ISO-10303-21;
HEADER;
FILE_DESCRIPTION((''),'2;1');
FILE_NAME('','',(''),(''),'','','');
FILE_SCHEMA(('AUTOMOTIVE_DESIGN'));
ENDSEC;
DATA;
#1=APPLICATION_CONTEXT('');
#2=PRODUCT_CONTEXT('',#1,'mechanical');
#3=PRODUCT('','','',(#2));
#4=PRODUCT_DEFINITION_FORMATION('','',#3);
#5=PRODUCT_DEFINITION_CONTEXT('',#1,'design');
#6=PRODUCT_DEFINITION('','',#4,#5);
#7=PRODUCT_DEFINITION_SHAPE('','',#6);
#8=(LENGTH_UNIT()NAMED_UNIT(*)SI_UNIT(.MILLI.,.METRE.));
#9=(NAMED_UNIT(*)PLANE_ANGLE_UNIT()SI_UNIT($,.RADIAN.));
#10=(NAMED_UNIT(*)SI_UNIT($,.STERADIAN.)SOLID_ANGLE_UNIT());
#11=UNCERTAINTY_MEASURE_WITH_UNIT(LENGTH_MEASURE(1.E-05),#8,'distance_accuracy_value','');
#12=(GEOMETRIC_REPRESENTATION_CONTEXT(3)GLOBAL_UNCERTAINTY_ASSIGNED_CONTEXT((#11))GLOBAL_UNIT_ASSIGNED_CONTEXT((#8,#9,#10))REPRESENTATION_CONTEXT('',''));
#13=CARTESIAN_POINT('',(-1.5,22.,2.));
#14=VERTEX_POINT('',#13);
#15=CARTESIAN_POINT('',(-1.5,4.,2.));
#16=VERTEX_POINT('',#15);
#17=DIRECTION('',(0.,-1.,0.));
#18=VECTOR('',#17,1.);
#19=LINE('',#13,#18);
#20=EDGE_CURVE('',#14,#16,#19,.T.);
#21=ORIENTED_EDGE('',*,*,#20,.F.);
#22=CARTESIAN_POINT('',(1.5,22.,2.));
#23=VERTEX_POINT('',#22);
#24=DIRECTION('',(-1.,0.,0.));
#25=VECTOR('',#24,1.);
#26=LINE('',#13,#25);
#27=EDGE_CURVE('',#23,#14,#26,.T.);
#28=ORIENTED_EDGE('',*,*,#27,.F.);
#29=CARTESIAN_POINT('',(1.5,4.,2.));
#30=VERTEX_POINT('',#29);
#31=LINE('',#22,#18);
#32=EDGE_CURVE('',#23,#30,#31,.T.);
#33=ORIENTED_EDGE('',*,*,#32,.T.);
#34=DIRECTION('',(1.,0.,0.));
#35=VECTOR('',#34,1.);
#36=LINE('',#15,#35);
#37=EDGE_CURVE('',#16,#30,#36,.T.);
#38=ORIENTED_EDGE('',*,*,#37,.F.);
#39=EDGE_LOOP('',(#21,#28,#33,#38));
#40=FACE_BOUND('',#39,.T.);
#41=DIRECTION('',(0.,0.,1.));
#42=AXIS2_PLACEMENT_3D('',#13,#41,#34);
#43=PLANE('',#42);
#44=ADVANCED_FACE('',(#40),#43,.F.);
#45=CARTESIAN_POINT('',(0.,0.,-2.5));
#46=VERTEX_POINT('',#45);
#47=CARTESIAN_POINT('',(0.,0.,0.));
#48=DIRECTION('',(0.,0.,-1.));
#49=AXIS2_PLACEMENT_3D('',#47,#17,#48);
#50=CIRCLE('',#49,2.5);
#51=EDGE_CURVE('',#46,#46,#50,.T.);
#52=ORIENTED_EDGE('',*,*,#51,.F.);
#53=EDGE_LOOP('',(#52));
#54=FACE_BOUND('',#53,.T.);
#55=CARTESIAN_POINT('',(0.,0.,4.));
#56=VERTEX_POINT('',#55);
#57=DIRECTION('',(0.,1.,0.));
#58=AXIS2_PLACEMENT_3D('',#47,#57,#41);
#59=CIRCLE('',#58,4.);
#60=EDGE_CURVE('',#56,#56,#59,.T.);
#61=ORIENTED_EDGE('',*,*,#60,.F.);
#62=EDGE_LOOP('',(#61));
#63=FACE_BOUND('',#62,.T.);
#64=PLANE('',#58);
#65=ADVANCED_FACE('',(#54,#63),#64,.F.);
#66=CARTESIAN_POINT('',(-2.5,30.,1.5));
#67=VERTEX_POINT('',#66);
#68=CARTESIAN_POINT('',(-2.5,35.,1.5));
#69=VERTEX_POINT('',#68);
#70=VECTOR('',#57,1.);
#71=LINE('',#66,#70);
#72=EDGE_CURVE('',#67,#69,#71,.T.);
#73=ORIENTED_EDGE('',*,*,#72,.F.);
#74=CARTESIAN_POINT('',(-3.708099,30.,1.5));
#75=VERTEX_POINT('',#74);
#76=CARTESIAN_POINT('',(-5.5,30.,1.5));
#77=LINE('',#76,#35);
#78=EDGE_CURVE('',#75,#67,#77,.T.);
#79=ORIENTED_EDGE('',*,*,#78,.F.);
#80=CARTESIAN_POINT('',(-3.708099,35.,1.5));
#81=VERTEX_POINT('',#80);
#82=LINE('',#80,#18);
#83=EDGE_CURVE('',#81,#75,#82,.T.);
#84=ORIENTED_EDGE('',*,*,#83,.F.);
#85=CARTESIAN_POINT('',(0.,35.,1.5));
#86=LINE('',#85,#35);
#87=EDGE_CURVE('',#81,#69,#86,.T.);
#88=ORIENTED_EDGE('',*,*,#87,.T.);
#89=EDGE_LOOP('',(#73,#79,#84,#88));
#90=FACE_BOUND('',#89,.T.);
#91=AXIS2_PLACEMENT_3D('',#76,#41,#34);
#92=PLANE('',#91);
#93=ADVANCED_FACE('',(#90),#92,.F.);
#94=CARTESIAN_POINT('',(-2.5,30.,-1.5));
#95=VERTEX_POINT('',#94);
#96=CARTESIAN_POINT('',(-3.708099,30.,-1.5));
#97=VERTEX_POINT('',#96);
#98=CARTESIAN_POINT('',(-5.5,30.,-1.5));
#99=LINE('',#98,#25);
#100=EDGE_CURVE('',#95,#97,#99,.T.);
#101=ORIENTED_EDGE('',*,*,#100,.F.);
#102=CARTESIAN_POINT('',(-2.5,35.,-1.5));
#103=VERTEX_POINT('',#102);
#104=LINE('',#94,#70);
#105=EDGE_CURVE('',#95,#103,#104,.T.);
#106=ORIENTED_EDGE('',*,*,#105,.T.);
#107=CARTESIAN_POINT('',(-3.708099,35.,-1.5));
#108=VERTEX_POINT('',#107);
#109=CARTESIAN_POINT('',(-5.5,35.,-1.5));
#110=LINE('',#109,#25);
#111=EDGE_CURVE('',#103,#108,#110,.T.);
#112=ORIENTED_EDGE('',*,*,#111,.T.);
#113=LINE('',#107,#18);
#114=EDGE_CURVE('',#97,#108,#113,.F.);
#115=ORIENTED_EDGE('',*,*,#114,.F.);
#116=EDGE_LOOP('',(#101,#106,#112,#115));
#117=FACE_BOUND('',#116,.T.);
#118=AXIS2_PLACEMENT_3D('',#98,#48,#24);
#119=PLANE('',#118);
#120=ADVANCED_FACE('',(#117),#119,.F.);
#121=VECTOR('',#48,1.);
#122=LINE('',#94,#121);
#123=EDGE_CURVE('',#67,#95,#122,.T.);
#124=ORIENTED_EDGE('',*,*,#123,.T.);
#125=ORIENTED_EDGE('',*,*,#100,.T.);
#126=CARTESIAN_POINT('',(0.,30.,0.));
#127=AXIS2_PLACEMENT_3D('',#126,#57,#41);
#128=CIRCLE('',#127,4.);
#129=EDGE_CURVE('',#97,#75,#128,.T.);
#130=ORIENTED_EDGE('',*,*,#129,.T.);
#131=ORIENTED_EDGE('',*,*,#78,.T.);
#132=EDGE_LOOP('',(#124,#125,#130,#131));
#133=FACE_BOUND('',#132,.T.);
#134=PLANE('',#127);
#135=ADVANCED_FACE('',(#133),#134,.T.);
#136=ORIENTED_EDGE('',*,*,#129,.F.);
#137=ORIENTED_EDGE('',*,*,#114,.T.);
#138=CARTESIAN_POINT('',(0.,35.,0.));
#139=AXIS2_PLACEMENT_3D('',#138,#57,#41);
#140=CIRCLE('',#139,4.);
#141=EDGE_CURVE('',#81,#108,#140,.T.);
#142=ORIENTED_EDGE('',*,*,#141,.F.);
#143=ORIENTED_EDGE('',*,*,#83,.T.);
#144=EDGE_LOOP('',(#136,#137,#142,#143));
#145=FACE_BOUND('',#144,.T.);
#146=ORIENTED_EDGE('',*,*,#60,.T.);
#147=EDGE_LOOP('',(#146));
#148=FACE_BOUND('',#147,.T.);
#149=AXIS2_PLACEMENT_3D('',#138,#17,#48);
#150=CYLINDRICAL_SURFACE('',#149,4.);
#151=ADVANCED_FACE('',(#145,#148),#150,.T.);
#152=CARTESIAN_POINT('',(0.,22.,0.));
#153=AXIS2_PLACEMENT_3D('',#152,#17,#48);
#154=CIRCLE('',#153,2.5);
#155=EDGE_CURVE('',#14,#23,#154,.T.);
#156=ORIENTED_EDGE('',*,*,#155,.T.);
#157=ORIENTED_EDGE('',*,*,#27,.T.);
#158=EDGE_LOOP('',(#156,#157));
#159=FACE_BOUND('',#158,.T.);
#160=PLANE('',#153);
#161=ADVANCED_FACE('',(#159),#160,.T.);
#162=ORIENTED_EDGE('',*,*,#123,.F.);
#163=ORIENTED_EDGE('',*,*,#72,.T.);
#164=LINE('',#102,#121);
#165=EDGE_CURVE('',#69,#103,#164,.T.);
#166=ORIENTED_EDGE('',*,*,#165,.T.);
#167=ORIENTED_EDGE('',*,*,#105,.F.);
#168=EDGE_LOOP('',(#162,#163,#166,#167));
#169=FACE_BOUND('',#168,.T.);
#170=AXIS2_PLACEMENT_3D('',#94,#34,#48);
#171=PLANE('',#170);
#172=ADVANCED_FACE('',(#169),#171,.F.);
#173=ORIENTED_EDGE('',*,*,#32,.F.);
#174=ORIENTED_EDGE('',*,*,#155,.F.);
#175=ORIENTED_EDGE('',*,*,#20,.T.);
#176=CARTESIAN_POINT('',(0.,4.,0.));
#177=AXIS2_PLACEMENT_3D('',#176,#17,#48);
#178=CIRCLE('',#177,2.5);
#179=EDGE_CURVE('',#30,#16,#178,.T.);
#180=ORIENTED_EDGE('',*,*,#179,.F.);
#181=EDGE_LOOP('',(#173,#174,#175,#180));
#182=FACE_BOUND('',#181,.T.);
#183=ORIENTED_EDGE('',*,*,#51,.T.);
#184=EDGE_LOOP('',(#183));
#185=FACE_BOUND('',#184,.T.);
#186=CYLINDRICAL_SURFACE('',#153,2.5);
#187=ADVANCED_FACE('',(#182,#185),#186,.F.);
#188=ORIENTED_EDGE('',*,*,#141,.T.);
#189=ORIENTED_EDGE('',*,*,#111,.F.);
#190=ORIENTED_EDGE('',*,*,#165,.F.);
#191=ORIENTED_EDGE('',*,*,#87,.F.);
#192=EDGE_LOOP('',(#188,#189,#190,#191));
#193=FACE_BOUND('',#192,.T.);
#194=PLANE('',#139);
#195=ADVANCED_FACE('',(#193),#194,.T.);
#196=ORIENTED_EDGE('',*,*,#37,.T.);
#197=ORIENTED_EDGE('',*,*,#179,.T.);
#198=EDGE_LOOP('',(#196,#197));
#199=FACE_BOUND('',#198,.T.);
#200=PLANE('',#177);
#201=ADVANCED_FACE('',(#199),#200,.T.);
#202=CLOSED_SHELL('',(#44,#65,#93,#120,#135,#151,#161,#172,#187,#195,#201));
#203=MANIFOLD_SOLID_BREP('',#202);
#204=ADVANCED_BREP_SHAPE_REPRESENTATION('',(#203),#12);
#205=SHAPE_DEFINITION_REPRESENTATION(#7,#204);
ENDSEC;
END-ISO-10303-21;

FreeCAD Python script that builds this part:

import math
import FreeCAD as App
import Part
import Sketcher


def add_polygon(sketch, points):
    """Adds a closed chain of lines whose ends are joined by coincident constraints."""
    first, n = sketch.GeometryCount, len(points)
    for a, b in zip(points, points[1:] + points[:1]):
        sketch.addGeometry(Part.LineSegment(App.Vector(*a, 0), App.Vector(*b, 0)), False)
    for i in range(n):
        sketch.addConstraint(Sketcher.Constraint("Coincident", first + i, 2, first + (i + 1) % n, 1))

doc = App.newDocument("Part")
body = doc.addObject("PartDesign::Body", "Body")

# Sketch on XZ plane
sketch1 = body.newObject("Sketcher::SketchObject", "Sketch")
sketch1.AttachmentSupport = (doc.getObject("XZ_Plane"), [""])
sketch1.MapMode = "FlatFace"
sketch1.addGeometry(Part.Circle(App.Vector(0, 0, 0), App.Vector(0, 0, 1), 4), False)
sketch1.addConstraint([
    Sketcher.Constraint("Coincident", 0, 3, -1, 1),
    Sketcher.Constraint("Diameter", 0, 8.0),
])
pad1 = body.newObject("PartDesign::Pad", "Pad")
pad1.Profile = sketch1
pad1.Length = 35
pad1.Reversed = True

# Sketch on XZ plane
sketch2 = body.newObject("Sketcher::SketchObject", "Sketch001")
sketch2.AttachmentSupport = (doc.getObject("XZ_Plane"), [""])
sketch2.MapMode = "FlatFace"
sketch2.addGeometry([
    Part.LineSegment(App.Vector(1.5, 2, 0), App.Vector(-1.5, 2, 0)),
    Part.ArcOfCircle(Part.Circle(App.Vector(0, 0, 0), App.Vector(0, 0, 1), 2.5), math.radians(127), math.radians(413)),
], False)
sketch2.addConstraint([
    Sketcher.Constraint("Coincident", 0, 1, 1, 2),
    Sketcher.Constraint("Coincident", 1, 1, 0, 2),
    Sketcher.Constraint("Horizontal", 0),
    Sketcher.Constraint("Coincident", 1, 3, -1, 1),
    Sketcher.Constraint("Radius", 1, 2.5),
    Sketcher.Constraint("DistanceX", 0, 2, 0, 1, 3.0),
])
pocket1 = body.newObject("PartDesign::Pocket", "Pocket")
pocket1.Profile = sketch2
pocket1.Length = 22

# Sketch on XZ plane
sketch3 = body.newObject("Sketcher::SketchObject", "Sketch002")
sketch3.AttachmentSupport = (doc.getObject("XZ_Plane"), [""])
sketch3.MapMode = "FlatFace"
sketch3.addGeometry(Part.Circle(App.Vector(0, 0, 0), App.Vector(0, 0, 1), 2.5), False)
sketch3.addConstraint([
    Sketcher.Constraint("Coincident", 0, 3, -1, 1),
    Sketcher.Constraint("Diameter", 0, 5.0),
])
pocket2 = body.newObject("PartDesign::Pocket", "Pocket001")
pocket2.Profile = sketch3
pocket2.Length = 4

# Sketch on XZ plane
sketch4 = body.newObject("Sketcher::SketchObject", "Sketch003")
sketch4.AttachmentSupport = (doc.getObject("XZ_Plane"), [""])
sketch4.MapMode = "FlatFace"
sketch4.AttachmentOffset = App.Placement(App.Vector(0, 0, -35), App.Rotation())
add_polygon(sketch4, [(-5.5, -1.5), (-5.5, 1.5), (-2.5, 1.5), (-2.5, -1.5)])  # lines 0-3
sketch4.addConstraint([
    Sketcher.Constraint("Vertical", 0),
    Sketcher.Constraint("Horizontal", 1),
    Sketcher.Constraint("Vertical", 2),
    Sketcher.Constraint("Horizontal", 3),
    Sketcher.Constraint("Equal", 3, 0),
    Sketcher.Constraint("DistanceX", 1, 1, 1, 2, 3.0),
    Sketcher.Constraint("DistanceX", 0, 2, -1, 1, 5.5),
    Sketcher.Constraint("DistanceY", -1, 1, 0, 2, 1.5),
])
pocket3 = body.newObject("PartDesign::Pocket", "Pocket002")
pocket3.Profile = sketch4
pocket3.Length = 5
pocket3.Reversed = True

doc.recompute()
